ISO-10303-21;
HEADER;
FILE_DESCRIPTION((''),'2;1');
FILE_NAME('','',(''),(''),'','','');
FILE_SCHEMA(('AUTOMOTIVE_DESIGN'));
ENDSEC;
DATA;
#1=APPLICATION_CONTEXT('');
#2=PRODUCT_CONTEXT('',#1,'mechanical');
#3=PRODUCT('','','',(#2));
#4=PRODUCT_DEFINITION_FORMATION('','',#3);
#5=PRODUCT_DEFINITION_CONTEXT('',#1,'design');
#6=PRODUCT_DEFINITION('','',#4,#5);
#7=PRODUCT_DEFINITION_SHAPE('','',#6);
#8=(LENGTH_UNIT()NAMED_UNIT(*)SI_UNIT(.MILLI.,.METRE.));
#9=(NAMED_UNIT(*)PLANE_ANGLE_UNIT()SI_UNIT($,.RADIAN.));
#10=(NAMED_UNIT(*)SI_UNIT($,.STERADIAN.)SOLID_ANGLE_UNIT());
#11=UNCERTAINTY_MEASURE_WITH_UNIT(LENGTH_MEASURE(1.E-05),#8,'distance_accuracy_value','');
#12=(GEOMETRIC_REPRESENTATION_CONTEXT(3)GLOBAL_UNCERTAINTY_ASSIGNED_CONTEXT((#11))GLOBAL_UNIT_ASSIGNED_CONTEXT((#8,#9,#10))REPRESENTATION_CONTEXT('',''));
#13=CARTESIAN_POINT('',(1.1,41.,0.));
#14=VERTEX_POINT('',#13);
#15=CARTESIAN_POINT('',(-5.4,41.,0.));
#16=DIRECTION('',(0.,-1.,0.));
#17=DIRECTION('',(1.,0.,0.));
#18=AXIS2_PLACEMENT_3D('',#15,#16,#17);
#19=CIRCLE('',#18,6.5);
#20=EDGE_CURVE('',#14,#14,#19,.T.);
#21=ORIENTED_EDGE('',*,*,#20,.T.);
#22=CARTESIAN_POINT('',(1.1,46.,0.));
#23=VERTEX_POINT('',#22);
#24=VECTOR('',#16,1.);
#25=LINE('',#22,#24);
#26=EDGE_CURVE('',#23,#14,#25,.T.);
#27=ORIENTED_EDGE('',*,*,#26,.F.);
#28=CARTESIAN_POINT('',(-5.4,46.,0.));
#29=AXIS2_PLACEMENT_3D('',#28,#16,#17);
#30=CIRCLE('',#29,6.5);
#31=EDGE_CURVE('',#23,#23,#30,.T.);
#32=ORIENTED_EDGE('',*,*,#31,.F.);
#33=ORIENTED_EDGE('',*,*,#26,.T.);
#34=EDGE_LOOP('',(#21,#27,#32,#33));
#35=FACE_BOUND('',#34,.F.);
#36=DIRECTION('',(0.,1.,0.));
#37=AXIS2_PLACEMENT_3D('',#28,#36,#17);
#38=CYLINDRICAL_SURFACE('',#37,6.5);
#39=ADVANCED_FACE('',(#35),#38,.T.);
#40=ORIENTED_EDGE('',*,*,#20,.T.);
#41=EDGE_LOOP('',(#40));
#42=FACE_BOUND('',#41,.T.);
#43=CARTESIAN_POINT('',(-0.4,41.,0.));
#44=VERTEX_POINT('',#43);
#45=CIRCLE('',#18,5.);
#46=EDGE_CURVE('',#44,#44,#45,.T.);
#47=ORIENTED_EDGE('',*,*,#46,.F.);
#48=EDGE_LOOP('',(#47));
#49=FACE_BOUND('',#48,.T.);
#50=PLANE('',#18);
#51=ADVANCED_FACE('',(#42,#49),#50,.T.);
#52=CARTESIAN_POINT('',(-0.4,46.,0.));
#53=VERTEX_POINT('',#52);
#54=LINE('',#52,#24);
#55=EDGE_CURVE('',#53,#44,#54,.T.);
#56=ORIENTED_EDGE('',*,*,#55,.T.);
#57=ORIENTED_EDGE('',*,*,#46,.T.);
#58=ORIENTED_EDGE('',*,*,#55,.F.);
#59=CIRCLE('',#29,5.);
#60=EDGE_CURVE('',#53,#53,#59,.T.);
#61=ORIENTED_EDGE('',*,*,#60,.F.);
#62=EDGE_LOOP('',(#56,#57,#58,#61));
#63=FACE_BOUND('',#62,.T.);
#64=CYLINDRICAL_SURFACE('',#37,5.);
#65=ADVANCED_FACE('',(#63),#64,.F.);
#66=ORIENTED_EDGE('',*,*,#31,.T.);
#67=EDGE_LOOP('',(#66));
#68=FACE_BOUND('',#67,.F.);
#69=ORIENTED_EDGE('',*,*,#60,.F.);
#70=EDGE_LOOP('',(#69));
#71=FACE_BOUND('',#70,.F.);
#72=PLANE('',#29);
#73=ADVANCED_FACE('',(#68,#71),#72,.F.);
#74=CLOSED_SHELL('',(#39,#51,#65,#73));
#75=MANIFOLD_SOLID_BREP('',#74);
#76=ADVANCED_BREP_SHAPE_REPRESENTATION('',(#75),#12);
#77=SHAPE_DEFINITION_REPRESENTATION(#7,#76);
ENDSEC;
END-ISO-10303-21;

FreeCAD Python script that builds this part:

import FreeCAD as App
import Part
import Sketcher

V = App.Vector
Q = App.Units.Quantity

doc = App.newDocument("Part")
params = doc.addObject("Spreadsheet::Sheet", "Params")
for row, (alias, value) in enumerate([
    ("sketch1_diameter", "10 mm"),
    ("pad1_length", "5 mm"),
    ("sketch2_diameter", "13 mm"),
    ("pad2_length", "5 mm"),
], start=1):
    params.set(f"A{row}", alias)
    params.set(f"B{row}", "=" + value)
    params.setAlias(f"B{row}", alias)

body = doc.addObject("PartDesign::Body", "Body")

sketch1 = body.newObject("Sketcher::SketchObject", "Sketch")
sketch1.AttachmentSupport = (doc.getObject("XY_Plane"), [""])
sketch1.MapMode = "FlatFace"
sketch1.addGeometry(Part.Circle(V(0, 0, 0), V(0, 0, 1), 5), False)
sketch1.addConstraint([
    Sketcher.Constraint("Coincident", 0, 3, -1, 1),
    Sketcher.Constraint("Diameter", 0, Q("10 mm")),
])
sketch1.setExpression("Constraints[1]", "Params.sketch1_diameter")
pad1 = body.newObject("PartDesign::Pad", "Pad")
pad1.Profile = sketch1
pad1.setExpression("Length", "Params.pad1_length")
body2 = doc.addObject("PartDesign::Body", "Body001")
doc.recompute()

body.Placement = App.Placement(V(0, 0, 0), App.Rotation(V(1, 0, 0), 90))
boolean = body2.newObject("PartDesign::Boolean", "Boolean")
boolean.Type = "Fuse"
boolean.addObjects([body])
body3 = doc.addObject("PartDesign::Body", "Body002")
doc.recompute()

body2.Placement = App.Placement(V(-5.4, 46, 0), App.Rotation(V(0, 0, 1), 0))
boolean2 = body3.newObject("PartDesign::Boolean", "Boolean001")
boolean2.Type = "Fuse"
boolean2.addObjects([body2])
body4 = doc.addObject("PartDesign::Body", "Body003")

sketch2 = body4.newObject("Sketcher::SketchObject", "Sketch001")
sketch2.AttachmentSupport = (doc.getObject("XY_Plane003"), [""])
sketch2.MapMode = "FlatFace"
sketch2.addGeometry(Part.Circle(V(0, 0, 0), V(0, 0, 1), 6), False)
sketch2.addConstraint([
    Sketcher.Constraint("Coincident", 0, 3, -1, 1),
    Sketcher.Constraint("Diameter", 0, Q("13 mm")),
])
sketch2.setExpression("Constraints[1]", "Params.sketch2_diameter")
pad2 = body4.newObject("PartDesign::Pad", "Pad001")
pad2.Profile = sketch2
pad2.setExpression("Length", "Params.pad2_length")
body5 = doc.addObject("PartDesign::Body", "Body004")
doc.recompute()

body4.Placement = App.Placement(V(0, 0, 0), App.Rotation(V(1, 0, 0), 90))
boolean3 = body5.newObject("PartDesign::Boolean", "Boolean002")
boolean3.Type = "Fuse"
boolean3.addObjects([body4])
body6 = doc.addObject("PartDesign::Body", "Body005")
doc.recompute()

body5.Placement = App.Placement(V(-5.4, 46, 0), App.Rotation(V(0, 0, 1), 0))
boolean4 = body6.newObject("PartDesign::Boolean", "Boolean003")
boolean4.Type = "Fuse"
boolean4.addObjects([body5])
doc.recompute()

boolean5 = body6.newObject("PartDesign::Boolean", "Boolean004")
boolean5.Type = "Cut"
boolean5.addObjects([body3])

doc.recompute()
